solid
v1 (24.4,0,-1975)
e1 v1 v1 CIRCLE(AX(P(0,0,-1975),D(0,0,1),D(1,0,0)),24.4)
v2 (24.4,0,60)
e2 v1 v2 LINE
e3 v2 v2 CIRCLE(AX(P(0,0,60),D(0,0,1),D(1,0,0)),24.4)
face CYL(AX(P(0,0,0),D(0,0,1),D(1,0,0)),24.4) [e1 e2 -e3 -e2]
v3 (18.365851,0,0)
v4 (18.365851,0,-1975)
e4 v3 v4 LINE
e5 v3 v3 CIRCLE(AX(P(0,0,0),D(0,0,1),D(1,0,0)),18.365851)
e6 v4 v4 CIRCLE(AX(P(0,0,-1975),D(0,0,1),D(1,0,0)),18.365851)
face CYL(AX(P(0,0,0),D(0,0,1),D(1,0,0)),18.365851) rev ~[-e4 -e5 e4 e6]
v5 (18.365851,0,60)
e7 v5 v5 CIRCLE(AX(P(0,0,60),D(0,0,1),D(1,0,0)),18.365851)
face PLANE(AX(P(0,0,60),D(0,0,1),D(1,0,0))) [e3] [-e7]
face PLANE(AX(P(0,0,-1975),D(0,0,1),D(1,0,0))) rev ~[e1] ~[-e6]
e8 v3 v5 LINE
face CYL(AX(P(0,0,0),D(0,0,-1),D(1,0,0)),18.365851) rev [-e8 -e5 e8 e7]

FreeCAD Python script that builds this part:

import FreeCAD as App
import Part
import Sketcher

V = App.Vector

doc = App.newDocument("Part")
params = doc.addObject("Spreadsheet::Sheet", "Params")
for row, (alias, value) in enumerate([
    ("sketch1_diameter", "48.8 mm"),
    ("pad1_length", "60 mm"),
    ("sketch2_diameter", "48.8 mm"),
    ("pad2_length", "1975 mm"),
], start=1):
    params.set(f"A{row}", alias)
    params.set(f"B{row}", "=" + value)
    params.setAlias(f"B{row}", alias)

body = doc.addObject("PartDesign::Body", "Body")

# Sketch on XY plane
sketch1 = body.newObject("Sketcher::SketchObject", "Sketch")
sketch1.AttachmentSupport = (doc.getObject("XY_Plane"), [""])
sketch1.MapMode = "FlatFace"
sketch1.addGeometry(Part.Circle(V(0, 0, 0), V(0, 0, 1), 24), False)
sketch1.addGeometry(Part.Circle(V(0, 0, 0), V(0, 0, 1), 18), False)
sketch1.addConstraint(Sketcher.Constraint("Coincident", 0, 3, -1, 1))
sketch1.addConstraint(Sketcher.Constraint("Coincident", 1, 3, -1, 1))
sketch1.addConstraint(Sketcher.Constraint("Diameter", 0, 48.8))
sketch1.addConstraint(Sketcher.Constraint("Diameter", 1, 36.731702))
sketch1.setExpression("Constraints[2]", "Params.sketch1_diameter")
pad1 = body.newObject("PartDesign::Pad", "Pad")
pad1.Profile = sketch1
pad1.setExpression("Length", "Params.pad1_length")

# Sketch on XY plane
sketch2 = body.newObject("Sketcher::SketchObject", "Sketch001")
sketch2.AttachmentSupport = (doc.getObject("XY_Plane"), [""])
sketch2.MapMode = "FlatFace"
sketch2.addGeometry(Part.Circle(V(0, 0, 0), V(0, 0, 1), 24), False)
sketch2.addGeometry(Part.Circle(V(0, 0, 0), V(0, 0, 1), 18), False)
sketch2.addConstraint(Sketcher.Constraint("Coincident", 0, 3, -1, 1))
sketch2.addConstraint(Sketcher.Constraint("Coincident", 1, 3, -1, 1))
sketch2.addConstraint(Sketcher.Constraint("Diameter", 0, 48.8))
sketch2.addConstraint(Sketcher.Constraint("Diameter", 1, 36.731702))
sketch2.setExpression("Constraints[2]", "Params.sketch2_diameter")
pad2 = body.newObject("PartDesign::Pad", "Pad001")
pad2.Profile = sketch2
pad2.setExpression("Length", "Params.pad2_length")
pad2.Reversed = True

doc.recompute()
